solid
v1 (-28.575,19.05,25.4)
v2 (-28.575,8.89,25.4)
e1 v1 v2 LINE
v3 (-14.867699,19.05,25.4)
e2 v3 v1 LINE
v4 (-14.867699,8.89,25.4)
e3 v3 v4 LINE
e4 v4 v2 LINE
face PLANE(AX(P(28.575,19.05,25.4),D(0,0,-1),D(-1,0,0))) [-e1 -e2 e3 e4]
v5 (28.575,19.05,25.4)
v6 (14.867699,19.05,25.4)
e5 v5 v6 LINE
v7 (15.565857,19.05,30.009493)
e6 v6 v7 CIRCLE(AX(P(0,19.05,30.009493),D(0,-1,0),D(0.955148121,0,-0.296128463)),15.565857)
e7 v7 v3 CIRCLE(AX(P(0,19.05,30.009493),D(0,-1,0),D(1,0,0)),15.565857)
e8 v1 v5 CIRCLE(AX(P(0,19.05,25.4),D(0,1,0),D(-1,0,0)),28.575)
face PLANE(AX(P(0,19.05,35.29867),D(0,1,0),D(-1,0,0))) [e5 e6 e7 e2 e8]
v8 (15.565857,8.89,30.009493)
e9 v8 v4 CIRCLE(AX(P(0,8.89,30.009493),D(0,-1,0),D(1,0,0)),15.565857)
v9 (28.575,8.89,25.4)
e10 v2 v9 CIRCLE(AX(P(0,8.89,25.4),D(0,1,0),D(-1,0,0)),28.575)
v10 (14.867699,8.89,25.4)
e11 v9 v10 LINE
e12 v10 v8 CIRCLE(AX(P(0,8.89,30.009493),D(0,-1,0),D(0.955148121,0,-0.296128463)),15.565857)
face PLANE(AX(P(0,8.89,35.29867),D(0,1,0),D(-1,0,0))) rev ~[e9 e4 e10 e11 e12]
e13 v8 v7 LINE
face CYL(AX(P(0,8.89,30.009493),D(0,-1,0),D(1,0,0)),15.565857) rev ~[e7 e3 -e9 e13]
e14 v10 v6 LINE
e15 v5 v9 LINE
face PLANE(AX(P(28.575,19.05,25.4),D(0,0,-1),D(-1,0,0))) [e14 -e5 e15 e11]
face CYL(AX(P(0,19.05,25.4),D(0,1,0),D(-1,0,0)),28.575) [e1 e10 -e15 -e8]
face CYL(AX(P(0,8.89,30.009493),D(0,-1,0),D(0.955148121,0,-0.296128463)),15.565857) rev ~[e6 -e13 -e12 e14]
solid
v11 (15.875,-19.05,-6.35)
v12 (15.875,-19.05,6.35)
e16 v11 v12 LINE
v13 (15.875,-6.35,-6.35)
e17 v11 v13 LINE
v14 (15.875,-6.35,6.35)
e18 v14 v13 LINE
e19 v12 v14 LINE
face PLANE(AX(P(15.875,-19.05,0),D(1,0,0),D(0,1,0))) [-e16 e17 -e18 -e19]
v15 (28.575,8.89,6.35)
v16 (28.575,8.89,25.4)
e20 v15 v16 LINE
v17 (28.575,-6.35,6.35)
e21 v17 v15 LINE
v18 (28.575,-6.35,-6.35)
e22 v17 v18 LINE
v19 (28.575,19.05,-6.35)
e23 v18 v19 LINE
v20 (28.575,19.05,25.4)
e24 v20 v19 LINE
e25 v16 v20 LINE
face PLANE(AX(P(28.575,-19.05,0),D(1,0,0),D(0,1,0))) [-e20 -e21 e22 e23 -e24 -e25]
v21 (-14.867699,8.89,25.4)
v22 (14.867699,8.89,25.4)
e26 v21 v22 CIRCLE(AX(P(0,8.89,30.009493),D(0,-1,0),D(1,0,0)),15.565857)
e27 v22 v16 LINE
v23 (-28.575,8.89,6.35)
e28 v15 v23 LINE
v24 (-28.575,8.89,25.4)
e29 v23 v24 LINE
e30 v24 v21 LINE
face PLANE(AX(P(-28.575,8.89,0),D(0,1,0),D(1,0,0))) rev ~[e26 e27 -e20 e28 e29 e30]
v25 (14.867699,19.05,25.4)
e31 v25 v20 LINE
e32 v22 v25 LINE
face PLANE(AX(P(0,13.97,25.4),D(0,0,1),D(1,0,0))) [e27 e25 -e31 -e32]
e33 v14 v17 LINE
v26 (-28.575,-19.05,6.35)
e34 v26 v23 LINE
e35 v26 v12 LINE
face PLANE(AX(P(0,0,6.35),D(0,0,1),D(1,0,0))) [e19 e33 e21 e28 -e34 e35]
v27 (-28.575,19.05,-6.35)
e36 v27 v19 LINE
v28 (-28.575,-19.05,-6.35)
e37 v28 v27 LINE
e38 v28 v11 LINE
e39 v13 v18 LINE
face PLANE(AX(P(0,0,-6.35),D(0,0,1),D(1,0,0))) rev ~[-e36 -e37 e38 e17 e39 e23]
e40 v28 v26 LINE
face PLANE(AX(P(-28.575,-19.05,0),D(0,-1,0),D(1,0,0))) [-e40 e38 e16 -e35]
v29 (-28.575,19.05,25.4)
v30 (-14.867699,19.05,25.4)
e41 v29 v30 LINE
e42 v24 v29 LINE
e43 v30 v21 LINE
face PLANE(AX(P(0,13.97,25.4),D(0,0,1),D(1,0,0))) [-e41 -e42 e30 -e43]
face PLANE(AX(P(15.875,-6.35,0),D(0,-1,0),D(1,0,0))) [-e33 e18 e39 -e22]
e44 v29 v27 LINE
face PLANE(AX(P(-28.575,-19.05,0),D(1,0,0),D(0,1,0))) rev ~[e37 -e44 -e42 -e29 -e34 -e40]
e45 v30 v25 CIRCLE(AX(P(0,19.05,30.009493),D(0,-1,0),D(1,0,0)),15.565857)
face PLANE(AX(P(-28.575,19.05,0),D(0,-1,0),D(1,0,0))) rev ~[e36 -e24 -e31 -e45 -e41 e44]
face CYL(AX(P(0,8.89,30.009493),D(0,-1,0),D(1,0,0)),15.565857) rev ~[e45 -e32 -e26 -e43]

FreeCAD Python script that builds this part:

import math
import FreeCAD as App
import Part
import Sketcher
from FreeCAD import Vector
Q = App.Units.Quantity

doc = App.newDocument("Part")
body = doc.addObject("PartDesign::Body", "Body")

sketch1 = body.newObject("Sketcher::SketchObject", "Sketch")
sketch1.AttachmentSupport = (doc.getObject("XY_Plane"), [""])
sketch1.MapMode = "FlatFace"
sketch1.addGeometry([
    Part.LineSegment(Vector(-29, 19, 0), Vector(-29, -19, 0)),
    Part.LineSegment(Vector(-29, -19, 0), Vector(29, -19, 0)),
    Part.LineSegment(Vector(29, -19, 0), Vector(29, 19, 0)),
    Part.LineSegment(Vector(29, 19, 0), Vector(-29, 19, 0)),
], False)
sketch1.addConstraint([
    Sketcher.Constraint("Coincident", 0, 2, 1, 1),
    Sketcher.Constraint("Coincident", 1, 2, 2, 1),
    Sketcher.Constraint("Coincident", 2, 2, 3, 1),
    Sketcher.Constraint("Coincident", 3, 2, 0, 1),
    Sketcher.Constraint("Vertical", 0),
    Sketcher.Constraint("Horizontal", 1),
    Sketcher.Constraint("Vertical", 2),
    Sketcher.Constraint("Horizontal", 3),
    Sketcher.Constraint("Symmetric", 0, 2, 2, 2, -1, 1),
    Sketcher.Constraint("DistanceY", 0, 2, 0, 1, Q("1.5 in")),
    Sketcher.Constraint("DistanceX", 1, 1, 1, 2, Q("2.25 in")),
])
pad1 = body.newObject("PartDesign::Pad", "Pad")
pad1.Profile = sketch1
pad1.Length = Q("0.5 in")
pad1.Midplane = True

sketch2 = body.newObject("Sketcher::SketchObject", "Sketch001")
sketch2.AttachmentSupport = (doc.getObject("XY_Plane"), [""])
sketch2.MapMode = "FlatFace"
sketch2.addGeometry([
    Part.LineSegment(Vector(16, -6, 0), Vector(16, -19, 0)),
    Part.LineSegment(Vector(16, -19, 0), Vector(29, -19, 0)),
    Part.LineSegment(Vector(29, -19, 0), Vector(29, -6, 0)),
    Part.LineSegment(Vector(29, -6, 0), Vector(16, -6, 0)),
], False)
sketch2.addConstraint([
    Sketcher.Constraint("Coincident", 0, 2, 1, 1),
    Sketcher.Constraint("Coincident", 1, 2, 2, 1),
    Sketcher.Constraint("Coincident", 2, 2, 3, 1),
    Sketcher.Constraint("Coincident", 3, 2, 0, 1),
    Sketcher.Constraint("Vertical", 0),
    Sketcher.Constraint("Horizontal", 1),
    Sketcher.Constraint("Vertical", 2),
    Sketcher.Constraint("Horizontal", 3),
    Sketcher.Constraint("Equal", 3, 0),
    Sketcher.Constraint("DistanceX", 1, 1, 1, 2, Q("0.5 in")),
    Sketcher.Constraint("DistanceY", 0, 2, -1, 1, Q("0.75 in")),
    Sketcher.Constraint("DistanceX", -1, 1, 0, 2, Q("0.625 in")),
])
pocket1 = body.newObject("PartDesign::Pocket", "Pocket")
pocket1.Profile = sketch2
pocket1.Length = Q("0.5 in")
pocket1.Midplane = True

sketch3 = body.newObject("Sketcher::SketchObject", "Sketch002")
sketch3.AttachmentSupport = (doc.getObject("XY_Plane"), [""])
sketch3.MapMode = "FlatFace"
sketch3.addGeometry([
    Part.LineSegment(Vector(-29, 19, 0), Vector(-29, 9, 0)),
    Part.LineSegment(Vector(-29, 9, 0), Vector(29, 9, 0)),
    Part.LineSegment(Vector(29, 9, 0), Vector(29, 19, 0)),
    Part.LineSegment(Vector(29, 19, 0), Vector(-29, 19, 0)),
], False)
sketch3.addConstraint([
    Sketcher.Constraint("Coincident", 0, 2, 1, 1),
    Sketcher.Constraint("Coincident", 1, 2, 2, 1),
    Sketcher.Constraint("Coincident", 2, 2, 3, 1),
    Sketcher.Constraint("Coincident", 3, 2, 0, 1),
    Sketcher.Constraint("Vertical", 0),
    Sketcher.Constraint("Horizontal", 1),
    Sketcher.Constraint("Vertical", 2),
    Sketcher.Constraint("Horizontal", 3),
    Sketcher.Constraint("DistanceY", 0, 2, 0, 1, Q("0.4 in")),
    Sketcher.Constraint("DistanceX", 1, 1, 1, 2, Q("2.25 in")),
    Sketcher.Constraint("DistanceY", -1, 1, 0, 2, Q("0.35 in")),
    Sketcher.Constraint("DistanceX", 0, 2, -1, 1, Q("1.125 in")),
])
pad2 = body.newObject("PartDesign::Pad", "Pad001")
pad2.Profile = sketch3
pad2.Length = Q("1 in")
body2 = doc.addObject("PartDesign::Body", "Body001")

sketch4 = body2.newObject("Sketcher::SketchObject", "Sketch003")
sketch4.AttachmentSupport = (doc.getObject("XZ_Plane001"), [""])
sketch4.MapMode = "FlatFace"
sketch4.AttachmentOffset = App.Placement(Vector(0, 0, -0.75 * 25.4), App.Rotation())
sketch4.addGeometry([
    Part.LineSegment(Vector(29, 25, 0), Vector(-29, 25, 0)),
    Part.ArcOfCircle(Part.Circle(Vector(0, 25, 0), Vector(0, 0, 1), 29), math.radians(0), math.radians(180)),
], False)
sketch4.addConstraint([
    Sketcher.Constraint("Coincident", 0, 1, 1, 1),
    Sketcher.Constraint("Coincident", 1, 2, 0, 2),
    Sketcher.Constraint("Horizontal", 0),
    Sketcher.Constraint("PointOnObject", 1, 3, -2),
    Sketcher.Constraint("Horizontal", 1, 3, 0, 1),
    Sketcher.Constraint("DistanceY", -1, 1, 1, 3, Q("1 in")),
    Sketcher.Constraint("Radius", 1, Q("1.125 in")),
])
pad3 = body2.newObject("PartDesign::Pad", "Pad002")
pad3.Profile = sketch4
pad3.Length = Q("0.4 in")
body3 = doc.addObject("PartDesign::Body", "Body002")

sketch5 = body3.newObject("Sketcher::SketchObject", "Sketch004")
sketch5.AttachmentSupport = (doc.getObject("XZ_Plane002"), [""])
sketch5.MapMode = "FlatFace"
sketch5.AttachmentOffset = App.Placement(Vector(0, 0, -0.35 * 25.4), App.Rotation())
sketch5.addGeometry([
    Part.ArcOfCircle(Part.Circle(Vector(0, 30, 0), Vector(0, 0, 1), 15.6), math.radians(-17.23), math.radians(0)),
    Part.ArcOfCircle(Part.Circle(Vector(0, 30, 0), Vector(0, 0, 1), 15.6), math.radians(0), math.radians(343)),
], False)
sketch5.addConstraint([
    Sketcher.Constraint("Tangent", 0, 1, 1, 2),
    Sketcher.Constraint("Coincident", 1, 1, 0, 2),
    Sketcher.Constraint("PointOnObject", 0, 3, -2),
    Sketcher.Constraint("Horizontal", 0, 3, 1, 1),
    Sketcher.Constraint("DistanceY", -1, 1, 0, 1, Q("1 in")),
    Sketcher.Constraint("Radius", 0, Q("15.565857 mm")),
    Sketcher.Constraint("DistanceX", -1, 1, 0, 1, Q("14.867699 mm")),
])
pad4 = body3.newObject("PartDesign::Pad", "Pad003")
pad4.Profile = sketch5
pad4.Length = Q("0.4 in")
pad4.Reversed = True
doc.recompute()

body4 = doc.addObject("PartDesign::Body", "Body003")
body4.BaseFeature = body3
boolean = body.newObject("PartDesign::Boolean", "Boolean")
boolean.Type = "Cut"
boolean.addObjects([body4])
doc.recompute()

boolean2 = body2.newObject("PartDesign::Boolean", "Boolean001")
boolean2.Type = "Cut"
boolean2.addObjects([body3])

doc.recompute()
